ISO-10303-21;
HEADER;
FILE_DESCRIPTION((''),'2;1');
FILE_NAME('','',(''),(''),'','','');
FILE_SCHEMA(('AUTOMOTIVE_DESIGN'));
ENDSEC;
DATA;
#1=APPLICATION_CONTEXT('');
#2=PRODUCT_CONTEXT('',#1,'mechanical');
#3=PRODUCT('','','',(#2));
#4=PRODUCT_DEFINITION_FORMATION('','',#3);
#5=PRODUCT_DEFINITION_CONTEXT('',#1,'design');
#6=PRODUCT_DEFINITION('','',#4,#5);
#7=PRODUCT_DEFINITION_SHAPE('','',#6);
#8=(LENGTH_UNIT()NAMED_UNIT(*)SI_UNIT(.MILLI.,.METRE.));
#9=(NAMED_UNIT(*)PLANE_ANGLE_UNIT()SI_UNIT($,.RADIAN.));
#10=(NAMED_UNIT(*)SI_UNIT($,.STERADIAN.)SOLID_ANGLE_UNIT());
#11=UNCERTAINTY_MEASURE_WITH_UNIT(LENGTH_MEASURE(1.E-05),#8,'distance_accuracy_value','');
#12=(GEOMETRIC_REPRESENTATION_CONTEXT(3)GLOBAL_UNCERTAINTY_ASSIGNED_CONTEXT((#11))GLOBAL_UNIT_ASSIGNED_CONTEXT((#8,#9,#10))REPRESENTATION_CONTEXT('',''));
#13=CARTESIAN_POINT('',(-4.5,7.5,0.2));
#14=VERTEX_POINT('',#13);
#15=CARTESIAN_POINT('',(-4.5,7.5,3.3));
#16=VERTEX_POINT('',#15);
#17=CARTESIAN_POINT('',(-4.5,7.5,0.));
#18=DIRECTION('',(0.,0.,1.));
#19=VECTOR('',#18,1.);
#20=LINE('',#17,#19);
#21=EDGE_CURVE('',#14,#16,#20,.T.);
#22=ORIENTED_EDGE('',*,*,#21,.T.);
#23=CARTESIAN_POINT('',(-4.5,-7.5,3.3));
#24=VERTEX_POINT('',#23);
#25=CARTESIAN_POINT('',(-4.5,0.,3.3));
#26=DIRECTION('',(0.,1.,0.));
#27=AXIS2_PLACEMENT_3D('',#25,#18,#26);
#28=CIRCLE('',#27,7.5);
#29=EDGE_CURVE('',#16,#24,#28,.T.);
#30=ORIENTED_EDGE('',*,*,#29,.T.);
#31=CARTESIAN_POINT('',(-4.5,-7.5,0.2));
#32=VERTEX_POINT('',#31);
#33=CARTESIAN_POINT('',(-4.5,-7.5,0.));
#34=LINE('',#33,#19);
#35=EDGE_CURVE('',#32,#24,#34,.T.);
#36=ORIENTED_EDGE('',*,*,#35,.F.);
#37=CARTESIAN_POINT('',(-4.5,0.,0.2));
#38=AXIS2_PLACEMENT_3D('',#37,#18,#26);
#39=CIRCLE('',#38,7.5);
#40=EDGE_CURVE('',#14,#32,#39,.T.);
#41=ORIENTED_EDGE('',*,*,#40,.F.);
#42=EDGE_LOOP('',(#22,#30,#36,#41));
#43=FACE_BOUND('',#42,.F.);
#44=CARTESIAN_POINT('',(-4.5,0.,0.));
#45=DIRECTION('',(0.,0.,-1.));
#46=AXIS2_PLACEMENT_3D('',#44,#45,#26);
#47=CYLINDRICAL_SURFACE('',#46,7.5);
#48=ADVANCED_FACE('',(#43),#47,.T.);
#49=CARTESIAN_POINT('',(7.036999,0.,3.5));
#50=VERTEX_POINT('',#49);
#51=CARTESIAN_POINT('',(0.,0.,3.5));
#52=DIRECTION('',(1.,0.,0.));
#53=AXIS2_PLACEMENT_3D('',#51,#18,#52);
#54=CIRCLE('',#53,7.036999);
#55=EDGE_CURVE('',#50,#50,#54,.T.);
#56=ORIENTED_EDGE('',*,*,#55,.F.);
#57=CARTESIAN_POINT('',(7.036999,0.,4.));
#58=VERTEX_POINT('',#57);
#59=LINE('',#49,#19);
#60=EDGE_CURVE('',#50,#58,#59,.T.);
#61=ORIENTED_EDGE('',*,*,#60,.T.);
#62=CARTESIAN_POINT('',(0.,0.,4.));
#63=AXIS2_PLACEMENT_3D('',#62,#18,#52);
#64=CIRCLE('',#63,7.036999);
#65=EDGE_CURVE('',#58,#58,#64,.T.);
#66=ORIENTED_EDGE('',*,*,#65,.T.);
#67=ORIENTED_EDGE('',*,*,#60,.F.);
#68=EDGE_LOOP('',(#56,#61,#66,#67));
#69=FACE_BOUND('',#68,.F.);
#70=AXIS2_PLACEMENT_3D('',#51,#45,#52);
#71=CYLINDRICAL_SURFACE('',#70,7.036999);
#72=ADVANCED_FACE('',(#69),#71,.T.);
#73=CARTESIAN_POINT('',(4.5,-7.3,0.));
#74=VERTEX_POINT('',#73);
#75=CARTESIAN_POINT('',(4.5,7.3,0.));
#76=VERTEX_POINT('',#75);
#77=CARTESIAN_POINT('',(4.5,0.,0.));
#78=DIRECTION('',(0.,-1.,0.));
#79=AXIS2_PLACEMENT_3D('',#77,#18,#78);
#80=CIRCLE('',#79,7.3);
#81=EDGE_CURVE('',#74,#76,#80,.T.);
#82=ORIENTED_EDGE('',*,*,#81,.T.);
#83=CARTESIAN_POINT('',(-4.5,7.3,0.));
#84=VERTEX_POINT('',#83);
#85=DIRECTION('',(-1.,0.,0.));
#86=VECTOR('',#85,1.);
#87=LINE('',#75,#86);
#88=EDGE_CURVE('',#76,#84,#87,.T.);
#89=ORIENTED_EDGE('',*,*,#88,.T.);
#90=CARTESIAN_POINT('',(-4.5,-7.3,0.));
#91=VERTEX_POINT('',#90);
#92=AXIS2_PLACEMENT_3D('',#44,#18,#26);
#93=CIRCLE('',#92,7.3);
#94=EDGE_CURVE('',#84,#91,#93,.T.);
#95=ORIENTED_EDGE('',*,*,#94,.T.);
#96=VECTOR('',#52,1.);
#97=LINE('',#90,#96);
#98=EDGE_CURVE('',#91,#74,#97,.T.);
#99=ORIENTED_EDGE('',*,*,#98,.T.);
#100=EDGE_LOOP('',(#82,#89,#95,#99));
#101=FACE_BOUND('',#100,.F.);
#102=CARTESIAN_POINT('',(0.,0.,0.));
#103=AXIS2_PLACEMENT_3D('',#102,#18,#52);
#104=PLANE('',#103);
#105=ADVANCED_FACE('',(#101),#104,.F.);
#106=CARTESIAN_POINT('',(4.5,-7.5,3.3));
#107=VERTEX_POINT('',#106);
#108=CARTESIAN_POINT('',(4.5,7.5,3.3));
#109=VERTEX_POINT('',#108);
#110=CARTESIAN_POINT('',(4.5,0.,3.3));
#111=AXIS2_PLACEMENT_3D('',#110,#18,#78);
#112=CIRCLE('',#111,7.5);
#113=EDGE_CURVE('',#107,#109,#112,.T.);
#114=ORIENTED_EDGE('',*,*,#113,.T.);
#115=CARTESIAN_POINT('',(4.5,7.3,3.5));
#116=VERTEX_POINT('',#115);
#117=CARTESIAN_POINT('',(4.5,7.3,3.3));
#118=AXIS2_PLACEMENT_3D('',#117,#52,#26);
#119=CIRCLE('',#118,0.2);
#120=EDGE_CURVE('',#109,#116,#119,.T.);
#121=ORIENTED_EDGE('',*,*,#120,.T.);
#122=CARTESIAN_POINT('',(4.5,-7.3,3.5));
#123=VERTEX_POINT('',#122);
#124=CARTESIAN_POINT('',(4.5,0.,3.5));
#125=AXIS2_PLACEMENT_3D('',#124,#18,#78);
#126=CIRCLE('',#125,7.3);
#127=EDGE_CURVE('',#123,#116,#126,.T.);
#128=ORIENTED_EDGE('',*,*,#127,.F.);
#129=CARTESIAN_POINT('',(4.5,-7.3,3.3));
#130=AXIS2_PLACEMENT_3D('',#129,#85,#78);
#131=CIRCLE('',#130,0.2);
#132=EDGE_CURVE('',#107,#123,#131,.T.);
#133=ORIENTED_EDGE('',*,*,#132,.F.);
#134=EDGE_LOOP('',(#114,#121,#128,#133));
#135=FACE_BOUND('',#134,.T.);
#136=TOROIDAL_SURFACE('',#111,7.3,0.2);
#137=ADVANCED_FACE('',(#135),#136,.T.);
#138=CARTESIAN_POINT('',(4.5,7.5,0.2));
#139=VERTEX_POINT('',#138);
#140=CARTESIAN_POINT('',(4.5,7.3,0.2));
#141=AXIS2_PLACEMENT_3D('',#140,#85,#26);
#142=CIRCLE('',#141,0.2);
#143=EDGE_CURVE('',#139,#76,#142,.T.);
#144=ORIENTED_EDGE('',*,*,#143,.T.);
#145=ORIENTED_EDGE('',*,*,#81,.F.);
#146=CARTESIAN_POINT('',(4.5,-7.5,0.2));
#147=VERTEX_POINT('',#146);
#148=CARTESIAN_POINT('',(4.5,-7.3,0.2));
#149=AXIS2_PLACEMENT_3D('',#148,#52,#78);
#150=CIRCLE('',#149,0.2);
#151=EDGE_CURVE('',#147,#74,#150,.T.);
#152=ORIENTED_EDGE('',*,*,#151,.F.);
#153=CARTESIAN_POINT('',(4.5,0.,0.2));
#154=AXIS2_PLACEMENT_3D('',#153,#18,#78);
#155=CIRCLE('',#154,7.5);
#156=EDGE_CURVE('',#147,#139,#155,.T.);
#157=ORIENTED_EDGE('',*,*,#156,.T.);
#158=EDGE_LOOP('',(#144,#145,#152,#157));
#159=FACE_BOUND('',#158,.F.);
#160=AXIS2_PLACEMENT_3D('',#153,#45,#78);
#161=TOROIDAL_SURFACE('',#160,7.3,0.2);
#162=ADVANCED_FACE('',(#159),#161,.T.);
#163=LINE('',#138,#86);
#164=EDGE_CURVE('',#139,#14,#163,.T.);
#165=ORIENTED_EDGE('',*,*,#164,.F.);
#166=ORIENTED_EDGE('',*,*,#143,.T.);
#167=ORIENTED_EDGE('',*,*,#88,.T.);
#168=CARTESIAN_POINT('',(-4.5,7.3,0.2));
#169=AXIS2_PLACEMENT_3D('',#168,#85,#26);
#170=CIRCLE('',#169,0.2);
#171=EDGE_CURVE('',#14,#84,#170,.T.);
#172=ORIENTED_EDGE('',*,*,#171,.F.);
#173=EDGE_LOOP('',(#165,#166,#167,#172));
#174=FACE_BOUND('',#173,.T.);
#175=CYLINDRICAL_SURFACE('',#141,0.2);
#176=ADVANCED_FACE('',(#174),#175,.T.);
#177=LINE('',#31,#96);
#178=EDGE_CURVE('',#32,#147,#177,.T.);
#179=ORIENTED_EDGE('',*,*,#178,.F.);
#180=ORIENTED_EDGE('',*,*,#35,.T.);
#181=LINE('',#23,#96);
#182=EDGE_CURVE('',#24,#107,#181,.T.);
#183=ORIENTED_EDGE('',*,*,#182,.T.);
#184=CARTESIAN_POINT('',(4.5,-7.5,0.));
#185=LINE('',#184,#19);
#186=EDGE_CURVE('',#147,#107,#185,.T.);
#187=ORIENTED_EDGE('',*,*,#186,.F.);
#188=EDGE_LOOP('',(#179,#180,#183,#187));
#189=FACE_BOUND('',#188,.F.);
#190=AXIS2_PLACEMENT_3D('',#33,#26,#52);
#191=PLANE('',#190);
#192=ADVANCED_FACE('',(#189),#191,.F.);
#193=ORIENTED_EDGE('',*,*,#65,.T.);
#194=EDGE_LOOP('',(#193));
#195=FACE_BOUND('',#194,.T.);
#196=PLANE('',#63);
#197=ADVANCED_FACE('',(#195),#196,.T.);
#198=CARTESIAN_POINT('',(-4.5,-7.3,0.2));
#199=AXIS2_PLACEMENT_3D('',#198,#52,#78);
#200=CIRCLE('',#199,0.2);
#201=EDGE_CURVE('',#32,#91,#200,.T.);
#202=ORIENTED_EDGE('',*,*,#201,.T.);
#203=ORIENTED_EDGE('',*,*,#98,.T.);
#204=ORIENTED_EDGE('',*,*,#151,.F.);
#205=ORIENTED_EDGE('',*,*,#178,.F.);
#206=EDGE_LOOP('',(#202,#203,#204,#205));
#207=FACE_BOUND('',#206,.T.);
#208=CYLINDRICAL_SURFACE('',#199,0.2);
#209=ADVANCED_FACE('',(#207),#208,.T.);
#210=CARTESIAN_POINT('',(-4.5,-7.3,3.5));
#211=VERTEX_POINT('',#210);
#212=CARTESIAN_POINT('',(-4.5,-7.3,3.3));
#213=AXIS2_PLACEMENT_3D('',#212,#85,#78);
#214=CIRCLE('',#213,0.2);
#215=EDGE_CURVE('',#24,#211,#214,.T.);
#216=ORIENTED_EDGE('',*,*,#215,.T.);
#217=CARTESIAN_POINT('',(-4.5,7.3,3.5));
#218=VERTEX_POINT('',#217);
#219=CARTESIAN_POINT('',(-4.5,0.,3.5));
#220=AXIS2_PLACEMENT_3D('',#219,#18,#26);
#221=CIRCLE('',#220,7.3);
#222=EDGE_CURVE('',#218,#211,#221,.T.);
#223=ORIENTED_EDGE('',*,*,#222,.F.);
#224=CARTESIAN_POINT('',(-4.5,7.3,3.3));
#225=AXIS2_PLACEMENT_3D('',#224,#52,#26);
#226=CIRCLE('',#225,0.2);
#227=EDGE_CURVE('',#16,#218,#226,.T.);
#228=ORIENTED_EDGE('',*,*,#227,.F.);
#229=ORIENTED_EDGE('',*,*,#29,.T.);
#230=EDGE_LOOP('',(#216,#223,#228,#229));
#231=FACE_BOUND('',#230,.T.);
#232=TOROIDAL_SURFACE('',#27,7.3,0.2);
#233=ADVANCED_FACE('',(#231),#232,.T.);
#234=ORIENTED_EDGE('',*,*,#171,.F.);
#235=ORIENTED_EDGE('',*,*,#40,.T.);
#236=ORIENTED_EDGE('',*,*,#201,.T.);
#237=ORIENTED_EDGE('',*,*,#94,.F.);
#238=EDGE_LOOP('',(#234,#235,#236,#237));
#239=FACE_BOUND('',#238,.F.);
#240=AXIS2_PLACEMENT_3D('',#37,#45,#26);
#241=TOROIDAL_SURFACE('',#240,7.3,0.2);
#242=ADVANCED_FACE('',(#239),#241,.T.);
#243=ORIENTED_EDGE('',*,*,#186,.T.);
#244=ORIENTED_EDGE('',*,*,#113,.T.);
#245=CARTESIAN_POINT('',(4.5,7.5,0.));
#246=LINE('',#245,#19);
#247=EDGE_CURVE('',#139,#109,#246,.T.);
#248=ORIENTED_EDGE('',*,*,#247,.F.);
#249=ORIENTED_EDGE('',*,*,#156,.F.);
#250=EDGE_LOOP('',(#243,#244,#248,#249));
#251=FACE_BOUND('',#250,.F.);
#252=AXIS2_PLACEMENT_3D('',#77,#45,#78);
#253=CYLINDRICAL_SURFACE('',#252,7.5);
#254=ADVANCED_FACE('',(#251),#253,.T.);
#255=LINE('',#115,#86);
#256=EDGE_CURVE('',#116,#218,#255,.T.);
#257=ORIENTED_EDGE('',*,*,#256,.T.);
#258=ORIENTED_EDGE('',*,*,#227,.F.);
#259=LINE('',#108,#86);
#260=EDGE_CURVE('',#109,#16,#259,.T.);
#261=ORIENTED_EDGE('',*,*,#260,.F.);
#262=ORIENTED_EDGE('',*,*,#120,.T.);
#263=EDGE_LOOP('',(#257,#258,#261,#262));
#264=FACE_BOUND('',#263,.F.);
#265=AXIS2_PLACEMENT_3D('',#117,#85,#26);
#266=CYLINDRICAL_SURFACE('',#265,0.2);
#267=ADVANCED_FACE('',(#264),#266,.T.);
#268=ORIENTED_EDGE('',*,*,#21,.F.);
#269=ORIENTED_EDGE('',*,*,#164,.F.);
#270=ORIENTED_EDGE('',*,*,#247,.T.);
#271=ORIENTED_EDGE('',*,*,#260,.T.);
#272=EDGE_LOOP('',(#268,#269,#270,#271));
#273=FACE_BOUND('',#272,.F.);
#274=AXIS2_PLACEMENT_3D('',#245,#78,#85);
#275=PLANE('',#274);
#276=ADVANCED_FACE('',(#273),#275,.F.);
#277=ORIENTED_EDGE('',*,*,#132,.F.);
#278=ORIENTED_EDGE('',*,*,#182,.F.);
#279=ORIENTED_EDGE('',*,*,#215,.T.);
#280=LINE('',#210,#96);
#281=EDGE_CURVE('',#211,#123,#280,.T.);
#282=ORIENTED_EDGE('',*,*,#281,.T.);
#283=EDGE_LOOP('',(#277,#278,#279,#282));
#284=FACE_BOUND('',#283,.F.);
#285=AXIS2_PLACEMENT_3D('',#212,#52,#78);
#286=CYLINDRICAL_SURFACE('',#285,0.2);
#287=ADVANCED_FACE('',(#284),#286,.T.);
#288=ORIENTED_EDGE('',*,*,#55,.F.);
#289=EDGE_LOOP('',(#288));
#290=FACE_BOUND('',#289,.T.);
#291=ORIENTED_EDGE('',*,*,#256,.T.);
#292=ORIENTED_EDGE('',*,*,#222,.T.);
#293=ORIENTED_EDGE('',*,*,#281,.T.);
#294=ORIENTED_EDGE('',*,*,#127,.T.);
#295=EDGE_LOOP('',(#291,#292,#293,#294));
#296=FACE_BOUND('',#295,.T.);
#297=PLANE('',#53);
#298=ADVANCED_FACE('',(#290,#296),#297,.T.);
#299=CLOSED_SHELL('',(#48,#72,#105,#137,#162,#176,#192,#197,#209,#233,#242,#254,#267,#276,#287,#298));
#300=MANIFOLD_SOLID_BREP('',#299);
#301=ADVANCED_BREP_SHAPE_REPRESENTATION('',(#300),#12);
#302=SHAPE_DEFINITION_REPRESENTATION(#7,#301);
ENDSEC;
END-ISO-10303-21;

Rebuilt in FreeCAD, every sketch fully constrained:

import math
import FreeCAD as App
import Part
import Sketcher
Q = App.Units.Quantity


def edges_at(feature, points):
    """Names of the edges that pass closest to the given points."""
    edges = feature.Shape.Edges
    near = lambda p: min(range(len(edges)), key=lambda i: edges[i].distToShape(Part.Vertex(*p))[0])
    return sorted({f"Edge{near(p) + 1}" for p in points})

doc = App.newDocument("Part")
body = doc.addObject("PartDesign::Body", "Body")

sketch1 = body.newObject("Sketcher::SketchObject", "Sketch")
sketch1.AttachmentSupport = (doc.getObject("XY_Plane"), [""])
sketch1.MapMode = "FlatFace"
sketch1.addGeometry([
    Part.LineSegment(App.Vector(-4, -8, 0), App.Vector(4, -8, 0)),
    Part.ArcOfCircle(Part.Circle(App.Vector(4, 0, 0), App.Vector(0, 0, 1), 8), math.radians(-90), math.radians(90)),
    Part.LineSegment(App.Vector(4, 8, 0), App.Vector(-4, 8, 0)),
    Part.ArcOfCircle(Part.Circle(App.Vector(-4, 0, 0), App.Vector(0, 0, 1), 8), math.radians(90), math.radians(270)),
], False)
sketch1.addConstraint([
    Sketcher.Constraint("Tangent", 0, 2, 1, 1),
    Sketcher.Constraint("Tangent", 1, 2, 2, 1),
    Sketcher.Constraint("Tangent", 2, 2, 3, 1),
    Sketcher.Constraint("Tangent", 3, 2, 0, 1),
    Sketcher.Constraint("Horizontal", 0),
    Sketcher.Constraint("Horizontal", 2),
    Sketcher.Constraint("Symmetric", 1, 3, 3, 3, -1, 1),
    Sketcher.Constraint("Radius", 1, Q("7.5 mm")),
    Sketcher.Constraint("DistanceX", 0, 1, 0, 2, Q("9 mm")),
])
pad1 = body.newObject("PartDesign::Pad", "Pad")
pad1.Profile = sketch1
pad1.Length = 3.5

sketch2 = body.newObject("Sketcher::SketchObject", "Sketch001")
sketch2.AttachmentSupport = (doc.getObject("XY_Plane"), [""])
sketch2.MapMode = "FlatFace"
sketch2.AttachmentOffset = App.Placement(App.Vector(0, 0, 3.5), App.Rotation())
sketch2.addGeometry(Part.Circle(App.Vector(0, 0, 0), App.Vector(0, 0, 1), 7), False)
sketch2.addConstraint([
    Sketcher.Constraint("Coincident", 0, 3, -1, 1),
    Sketcher.Constraint("Diameter", 0, Q("14.073997 mm")),
])
pad2 = body.newObject("PartDesign::Pad", "Pad001")
pad2.Profile = sketch2
pad2.Length = 0.5
doc.recompute()

fillet = body.newObject("PartDesign::Fillet", "Fillet")
fillet.Base = (pad2, edges_at(pad2, [
    (-12, 0, 3.5),
    (0, -7.5, 3.5),
    (12, 0, 3.5),
    (0, -7.5, 0),
    (-12, 0, 0),
    (0, 7.5, 0),
    (12, 0, 0),
    (0, 7.5, 3.5),
]))
fillet.Radius = 0.2

doc.recompute()
